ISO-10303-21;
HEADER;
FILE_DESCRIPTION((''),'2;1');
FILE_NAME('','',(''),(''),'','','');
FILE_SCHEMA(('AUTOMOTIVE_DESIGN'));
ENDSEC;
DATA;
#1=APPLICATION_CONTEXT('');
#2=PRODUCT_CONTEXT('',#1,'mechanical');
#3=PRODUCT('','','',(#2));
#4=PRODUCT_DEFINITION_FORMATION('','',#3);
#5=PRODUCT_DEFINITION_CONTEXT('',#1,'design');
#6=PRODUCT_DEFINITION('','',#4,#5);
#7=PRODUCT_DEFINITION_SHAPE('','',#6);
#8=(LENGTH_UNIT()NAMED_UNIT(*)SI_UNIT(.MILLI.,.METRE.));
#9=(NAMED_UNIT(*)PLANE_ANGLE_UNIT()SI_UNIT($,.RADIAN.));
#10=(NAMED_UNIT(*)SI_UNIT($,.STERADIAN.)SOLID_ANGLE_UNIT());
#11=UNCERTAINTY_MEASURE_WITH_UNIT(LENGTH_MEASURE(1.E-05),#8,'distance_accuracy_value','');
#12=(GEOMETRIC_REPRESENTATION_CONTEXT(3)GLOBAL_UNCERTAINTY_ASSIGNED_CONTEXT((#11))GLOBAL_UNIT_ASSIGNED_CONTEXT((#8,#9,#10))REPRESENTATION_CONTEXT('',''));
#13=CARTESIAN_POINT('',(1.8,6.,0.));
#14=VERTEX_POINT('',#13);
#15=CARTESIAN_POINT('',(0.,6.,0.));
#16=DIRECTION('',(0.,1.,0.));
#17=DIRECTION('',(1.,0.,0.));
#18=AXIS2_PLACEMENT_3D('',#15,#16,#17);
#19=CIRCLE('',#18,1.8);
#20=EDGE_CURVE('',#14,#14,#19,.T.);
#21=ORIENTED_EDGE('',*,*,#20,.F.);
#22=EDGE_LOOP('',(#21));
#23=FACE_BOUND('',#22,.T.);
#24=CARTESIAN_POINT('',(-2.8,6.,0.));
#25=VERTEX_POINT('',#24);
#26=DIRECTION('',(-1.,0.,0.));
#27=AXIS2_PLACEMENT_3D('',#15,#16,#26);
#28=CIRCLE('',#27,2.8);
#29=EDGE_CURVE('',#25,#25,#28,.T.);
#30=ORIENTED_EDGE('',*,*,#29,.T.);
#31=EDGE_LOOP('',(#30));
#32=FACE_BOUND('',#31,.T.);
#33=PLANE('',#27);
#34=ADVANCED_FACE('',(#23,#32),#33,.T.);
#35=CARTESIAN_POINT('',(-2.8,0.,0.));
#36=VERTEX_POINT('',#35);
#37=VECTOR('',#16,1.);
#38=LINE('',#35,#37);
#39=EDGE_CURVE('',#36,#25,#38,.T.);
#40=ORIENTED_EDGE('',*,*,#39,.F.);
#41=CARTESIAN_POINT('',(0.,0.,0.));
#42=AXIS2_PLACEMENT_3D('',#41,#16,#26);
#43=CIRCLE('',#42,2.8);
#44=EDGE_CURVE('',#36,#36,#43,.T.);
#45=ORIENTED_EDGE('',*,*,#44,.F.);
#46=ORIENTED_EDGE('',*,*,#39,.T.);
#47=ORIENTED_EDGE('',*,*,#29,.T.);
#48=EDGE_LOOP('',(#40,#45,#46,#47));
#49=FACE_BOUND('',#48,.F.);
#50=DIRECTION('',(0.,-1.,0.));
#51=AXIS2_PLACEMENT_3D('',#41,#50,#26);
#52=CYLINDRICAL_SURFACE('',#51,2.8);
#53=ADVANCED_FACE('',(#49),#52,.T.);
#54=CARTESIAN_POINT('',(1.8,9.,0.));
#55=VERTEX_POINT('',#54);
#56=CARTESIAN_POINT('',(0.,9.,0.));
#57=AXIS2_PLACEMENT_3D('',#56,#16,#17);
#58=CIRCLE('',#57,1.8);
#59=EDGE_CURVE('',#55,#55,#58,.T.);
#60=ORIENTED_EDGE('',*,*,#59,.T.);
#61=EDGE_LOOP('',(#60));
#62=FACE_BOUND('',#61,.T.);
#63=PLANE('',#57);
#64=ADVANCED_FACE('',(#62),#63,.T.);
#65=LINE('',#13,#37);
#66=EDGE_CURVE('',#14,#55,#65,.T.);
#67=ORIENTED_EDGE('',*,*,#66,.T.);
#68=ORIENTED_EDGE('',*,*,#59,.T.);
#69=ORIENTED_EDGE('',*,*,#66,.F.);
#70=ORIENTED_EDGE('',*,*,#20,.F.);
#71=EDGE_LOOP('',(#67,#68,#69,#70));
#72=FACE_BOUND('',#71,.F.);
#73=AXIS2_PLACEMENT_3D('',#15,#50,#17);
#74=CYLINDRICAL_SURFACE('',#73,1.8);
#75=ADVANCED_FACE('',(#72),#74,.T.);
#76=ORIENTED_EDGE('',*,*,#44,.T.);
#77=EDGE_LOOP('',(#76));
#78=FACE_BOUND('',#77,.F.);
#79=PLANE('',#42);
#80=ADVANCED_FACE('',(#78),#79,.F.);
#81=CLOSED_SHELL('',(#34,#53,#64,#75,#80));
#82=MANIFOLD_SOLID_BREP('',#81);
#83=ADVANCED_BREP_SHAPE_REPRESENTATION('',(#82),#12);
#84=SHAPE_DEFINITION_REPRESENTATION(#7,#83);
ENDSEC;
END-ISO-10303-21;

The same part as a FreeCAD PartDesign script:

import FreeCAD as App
import Part
import Sketcher

doc = App.newDocument("Part")
body = doc.addObject("PartDesign::Body", "Body")

# Sketch on XZ plane
sketch1 = doc.addObject("Sketcher::SketchObject", "Sketch")
body.addObject(sketch1)
sketch1.AttachmentSupport = (doc.XZ_Plane, [""])
sketch1.MapMode = "FlatFace"
sketch1.addGeometry(Part.Circle(App.Vector(0, 0, 0), App.Vector(0, 0, 1), 2.8), False)
sketch1.addConstraint(Sketcher.Constraint("Coincident", 0, 3, -1, 1))
sketch1.addConstraint(Sketcher.Constraint("Diameter", 0, 5.6))
pad1 = doc.addObject("PartDesign::Pad", "Pad")
body.addObject(pad1)
pad1.Profile = sketch1
pad1.Length = 6
pad1.Reversed = True

# Sketch on XZ plane
sketch2 = doc.addObject("Sketcher::SketchObject", "Sketch001")
body.addObject(sketch2)
sketch2.AttachmentSupport = (doc.XZ_Plane, [""])
sketch2.MapMode = "FlatFace"
sketch2.AttachmentOffset = App.Placement(App.Vector(0, 0, -6), App.Rotation())
sketch2.addGeometry(Part.Circle(App.Vector(0, 0, 0), App.Vector(0, 0, 1), 1.8), False)
sketch2.addConstraint(Sketcher.Constraint("Coincident", 0, 3, -1, 1))
sketch2.addConstraint(Sketcher.Constraint("Diameter", 0, 3.6))
pad2 = doc.addObject("PartDesign::Pad", "Pad001")
body.addObject(pad2)
pad2.Profile = sketch2
pad2.Length = 3
pad2.Reversed = True

doc.recompute()
